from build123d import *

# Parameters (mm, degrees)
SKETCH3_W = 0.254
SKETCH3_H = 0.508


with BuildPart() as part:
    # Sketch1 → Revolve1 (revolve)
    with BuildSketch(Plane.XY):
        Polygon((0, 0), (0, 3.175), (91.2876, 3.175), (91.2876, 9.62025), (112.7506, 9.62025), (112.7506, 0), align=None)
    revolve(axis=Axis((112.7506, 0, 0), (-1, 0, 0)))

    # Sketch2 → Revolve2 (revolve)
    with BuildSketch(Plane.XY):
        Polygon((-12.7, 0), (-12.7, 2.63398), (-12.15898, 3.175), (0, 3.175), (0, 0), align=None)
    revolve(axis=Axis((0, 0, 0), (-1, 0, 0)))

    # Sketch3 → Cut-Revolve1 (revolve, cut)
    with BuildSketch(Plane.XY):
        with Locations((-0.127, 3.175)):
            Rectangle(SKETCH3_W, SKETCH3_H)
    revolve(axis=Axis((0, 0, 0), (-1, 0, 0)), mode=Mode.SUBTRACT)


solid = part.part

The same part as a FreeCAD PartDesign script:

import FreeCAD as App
import Part
import Sketcher
from FreeCAD import Vector
Q = App.Units.Quantity


def add_polygon(sketch, points):
    """Adds a closed chain of lines whose ends are joined by coincident constraints."""
    first, n = sketch.GeometryCount, len(points)
    for a, b in zip(points, points[1:] + points[:1]):
        sketch.addGeometry(Part.LineSegment(App.Vector(*a, 0), App.Vector(*b, 0)), False)
    for i in range(n):
        sketch.addConstraint(Sketcher.Constraint("Coincident", first + i, 2, first + (i + 1) % n, 1))

doc = App.newDocument("Part")
body = doc.addObject("PartDesign::Body", "Body")

# Sketch on XY plane
sketch1 = doc.addObject("Sketcher::SketchObject", "Sketch")
body.addObject(sketch1)
sketch1.AttachmentSupport = (doc.XY_Plane, [""])
sketch1.MapMode = "FlatFace"
add_polygon(sketch1, [(0, 3.2), (0, 0), (112.8, 0), (112.8, 9.6), (91.3, 9.6), (91.3, 3.2)])  # lines 0-5
sketch1.addConstraint(Sketcher.Constraint("Vertical", 0))
sketch1.addConstraint(Sketcher.Constraint("Horizontal", 1))
sketch1.addConstraint(Sketcher.Constraint("Vertical", 2))
sketch1.addConstraint(Sketcher.Constraint("Horizontal", 3))
sketch1.addConstraint(Sketcher.Constraint("Vertical", 4))
sketch1.addConstraint(Sketcher.Constraint("Horizontal", 5))
sketch1.addConstraint(Sketcher.Constraint("Coincident", 0, 2, -1, 1))
sketch1.addConstraint(Sketcher.Constraint("DistanceX", 1, 1, 1, 2, Q("4.439 in")))
sketch1.addConstraint(Sketcher.Constraint("DistanceX", 3, 2, 3, 1, Q("0.845 in")))
sketch1.addConstraint(Sketcher.Constraint("DistanceY", 0, 2, 0, 1, Q("0.125 in")))
sketch1.addConstraint(Sketcher.Constraint("DistanceY", 2, 1, 2, 2, Q("9.62025 mm")))
revolution = doc.addObject("PartDesign::Revolution", "Revolution")
body.addObject(revolution)
revolution.Profile = sketch1
revolution.ReferenceAxis = (sketch1, ["H_Axis"])
revolution.Angle = 360

# Sketch on XY plane
sketch2 = doc.addObject("Sketcher::SketchObject", "Sketch001")
body.addObject(sketch2)
sketch2.AttachmentSupport = (doc.XY_Plane, [""])
sketch2.MapMode = "FlatFace"
add_polygon(sketch2, [(-12.7, 2.6), (-12.7, 0), (0, 0), (0, 3.2), (-12.2, 3.2)])  # lines 0-4
sketch2.addConstraint(Sketcher.Constraint("Vertical", 0))
sketch2.addConstraint(Sketcher.Constraint("Horizontal", 1))
sketch2.addConstraint(Sketcher.Constraint("Vertical", 2))
sketch2.addConstraint(Sketcher.Constraint("Horizontal", 3))
sketch2.addConstraint(Sketcher.Constraint("Coincident", 1, 2, -1, 1))
sketch2.addConstraint(Sketcher.Constraint("DistanceX", 1, 1, 1, 2, Q("0.5 in")))
sketch2.addConstraint(Sketcher.Constraint("Angle", 4, Q("-135 deg")))
sketch2.addConstraint(Sketcher.Constraint("DistanceY", 2, 1, 2, 2, Q("0.125 in")))
sketch2.addConstraint(Sketcher.Constraint("DistanceX", 3, 2, 3, 1, Q("0.4787 in")))
revolution2 = doc.addObject("PartDesign::Revolution", "Revolution001")
body.addObject(revolution2)
revolution2.Profile = sketch2
revolution2.ReferenceAxis = (sketch2, ["H_Axis"])
revolution2.Angle = 360

# Sketch on XY plane
sketch3 = doc.addObject("Sketcher::SketchObject", "Sketch002")
body.addObject(sketch3)
sketch3.AttachmentSupport = (doc.XY_Plane, [""])
sketch3.MapMode = "FlatFace"
add_polygon(sketch3, [(-0.25, 3.43), (-0.25, 2.92), (0, 2.92), (0, 3.43)])  # lines 0-3
sketch3.addConstraint(Sketcher.Constraint("Vertical", 0))
sketch3.addConstraint(Sketcher.Constraint("Horizontal", 1))
sketch3.addConstraint(Sketcher.Constraint("Vertical", 2))
sketch3.addConstraint(Sketcher.Constraint("Horizontal", 3))
sketch3.addConstraint(Sketcher.Constraint("PointOnObject", 1, 2, -2))
sketch3.addConstraint(Sketcher.Constraint("DistanceX", 1, 1, 1, 2, Q("0.01 in")))
sketch3.addConstraint(Sketcher.Constraint("DistanceY", 0, 2, 0, 1, Q("0.02 in")))
sketch3.addConstraint(Sketcher.Constraint("DistanceY", -1, 1, 0, 2, Q("0.115 in")))
groove = doc.addObject("PartDesign::Groove", "Groove")
body.addObject(groove)
groove.Profile = sketch3
groove.ReferenceAxis = (sketch3, ["H_Axis"])
groove.Angle = 360

doc.recompute()
